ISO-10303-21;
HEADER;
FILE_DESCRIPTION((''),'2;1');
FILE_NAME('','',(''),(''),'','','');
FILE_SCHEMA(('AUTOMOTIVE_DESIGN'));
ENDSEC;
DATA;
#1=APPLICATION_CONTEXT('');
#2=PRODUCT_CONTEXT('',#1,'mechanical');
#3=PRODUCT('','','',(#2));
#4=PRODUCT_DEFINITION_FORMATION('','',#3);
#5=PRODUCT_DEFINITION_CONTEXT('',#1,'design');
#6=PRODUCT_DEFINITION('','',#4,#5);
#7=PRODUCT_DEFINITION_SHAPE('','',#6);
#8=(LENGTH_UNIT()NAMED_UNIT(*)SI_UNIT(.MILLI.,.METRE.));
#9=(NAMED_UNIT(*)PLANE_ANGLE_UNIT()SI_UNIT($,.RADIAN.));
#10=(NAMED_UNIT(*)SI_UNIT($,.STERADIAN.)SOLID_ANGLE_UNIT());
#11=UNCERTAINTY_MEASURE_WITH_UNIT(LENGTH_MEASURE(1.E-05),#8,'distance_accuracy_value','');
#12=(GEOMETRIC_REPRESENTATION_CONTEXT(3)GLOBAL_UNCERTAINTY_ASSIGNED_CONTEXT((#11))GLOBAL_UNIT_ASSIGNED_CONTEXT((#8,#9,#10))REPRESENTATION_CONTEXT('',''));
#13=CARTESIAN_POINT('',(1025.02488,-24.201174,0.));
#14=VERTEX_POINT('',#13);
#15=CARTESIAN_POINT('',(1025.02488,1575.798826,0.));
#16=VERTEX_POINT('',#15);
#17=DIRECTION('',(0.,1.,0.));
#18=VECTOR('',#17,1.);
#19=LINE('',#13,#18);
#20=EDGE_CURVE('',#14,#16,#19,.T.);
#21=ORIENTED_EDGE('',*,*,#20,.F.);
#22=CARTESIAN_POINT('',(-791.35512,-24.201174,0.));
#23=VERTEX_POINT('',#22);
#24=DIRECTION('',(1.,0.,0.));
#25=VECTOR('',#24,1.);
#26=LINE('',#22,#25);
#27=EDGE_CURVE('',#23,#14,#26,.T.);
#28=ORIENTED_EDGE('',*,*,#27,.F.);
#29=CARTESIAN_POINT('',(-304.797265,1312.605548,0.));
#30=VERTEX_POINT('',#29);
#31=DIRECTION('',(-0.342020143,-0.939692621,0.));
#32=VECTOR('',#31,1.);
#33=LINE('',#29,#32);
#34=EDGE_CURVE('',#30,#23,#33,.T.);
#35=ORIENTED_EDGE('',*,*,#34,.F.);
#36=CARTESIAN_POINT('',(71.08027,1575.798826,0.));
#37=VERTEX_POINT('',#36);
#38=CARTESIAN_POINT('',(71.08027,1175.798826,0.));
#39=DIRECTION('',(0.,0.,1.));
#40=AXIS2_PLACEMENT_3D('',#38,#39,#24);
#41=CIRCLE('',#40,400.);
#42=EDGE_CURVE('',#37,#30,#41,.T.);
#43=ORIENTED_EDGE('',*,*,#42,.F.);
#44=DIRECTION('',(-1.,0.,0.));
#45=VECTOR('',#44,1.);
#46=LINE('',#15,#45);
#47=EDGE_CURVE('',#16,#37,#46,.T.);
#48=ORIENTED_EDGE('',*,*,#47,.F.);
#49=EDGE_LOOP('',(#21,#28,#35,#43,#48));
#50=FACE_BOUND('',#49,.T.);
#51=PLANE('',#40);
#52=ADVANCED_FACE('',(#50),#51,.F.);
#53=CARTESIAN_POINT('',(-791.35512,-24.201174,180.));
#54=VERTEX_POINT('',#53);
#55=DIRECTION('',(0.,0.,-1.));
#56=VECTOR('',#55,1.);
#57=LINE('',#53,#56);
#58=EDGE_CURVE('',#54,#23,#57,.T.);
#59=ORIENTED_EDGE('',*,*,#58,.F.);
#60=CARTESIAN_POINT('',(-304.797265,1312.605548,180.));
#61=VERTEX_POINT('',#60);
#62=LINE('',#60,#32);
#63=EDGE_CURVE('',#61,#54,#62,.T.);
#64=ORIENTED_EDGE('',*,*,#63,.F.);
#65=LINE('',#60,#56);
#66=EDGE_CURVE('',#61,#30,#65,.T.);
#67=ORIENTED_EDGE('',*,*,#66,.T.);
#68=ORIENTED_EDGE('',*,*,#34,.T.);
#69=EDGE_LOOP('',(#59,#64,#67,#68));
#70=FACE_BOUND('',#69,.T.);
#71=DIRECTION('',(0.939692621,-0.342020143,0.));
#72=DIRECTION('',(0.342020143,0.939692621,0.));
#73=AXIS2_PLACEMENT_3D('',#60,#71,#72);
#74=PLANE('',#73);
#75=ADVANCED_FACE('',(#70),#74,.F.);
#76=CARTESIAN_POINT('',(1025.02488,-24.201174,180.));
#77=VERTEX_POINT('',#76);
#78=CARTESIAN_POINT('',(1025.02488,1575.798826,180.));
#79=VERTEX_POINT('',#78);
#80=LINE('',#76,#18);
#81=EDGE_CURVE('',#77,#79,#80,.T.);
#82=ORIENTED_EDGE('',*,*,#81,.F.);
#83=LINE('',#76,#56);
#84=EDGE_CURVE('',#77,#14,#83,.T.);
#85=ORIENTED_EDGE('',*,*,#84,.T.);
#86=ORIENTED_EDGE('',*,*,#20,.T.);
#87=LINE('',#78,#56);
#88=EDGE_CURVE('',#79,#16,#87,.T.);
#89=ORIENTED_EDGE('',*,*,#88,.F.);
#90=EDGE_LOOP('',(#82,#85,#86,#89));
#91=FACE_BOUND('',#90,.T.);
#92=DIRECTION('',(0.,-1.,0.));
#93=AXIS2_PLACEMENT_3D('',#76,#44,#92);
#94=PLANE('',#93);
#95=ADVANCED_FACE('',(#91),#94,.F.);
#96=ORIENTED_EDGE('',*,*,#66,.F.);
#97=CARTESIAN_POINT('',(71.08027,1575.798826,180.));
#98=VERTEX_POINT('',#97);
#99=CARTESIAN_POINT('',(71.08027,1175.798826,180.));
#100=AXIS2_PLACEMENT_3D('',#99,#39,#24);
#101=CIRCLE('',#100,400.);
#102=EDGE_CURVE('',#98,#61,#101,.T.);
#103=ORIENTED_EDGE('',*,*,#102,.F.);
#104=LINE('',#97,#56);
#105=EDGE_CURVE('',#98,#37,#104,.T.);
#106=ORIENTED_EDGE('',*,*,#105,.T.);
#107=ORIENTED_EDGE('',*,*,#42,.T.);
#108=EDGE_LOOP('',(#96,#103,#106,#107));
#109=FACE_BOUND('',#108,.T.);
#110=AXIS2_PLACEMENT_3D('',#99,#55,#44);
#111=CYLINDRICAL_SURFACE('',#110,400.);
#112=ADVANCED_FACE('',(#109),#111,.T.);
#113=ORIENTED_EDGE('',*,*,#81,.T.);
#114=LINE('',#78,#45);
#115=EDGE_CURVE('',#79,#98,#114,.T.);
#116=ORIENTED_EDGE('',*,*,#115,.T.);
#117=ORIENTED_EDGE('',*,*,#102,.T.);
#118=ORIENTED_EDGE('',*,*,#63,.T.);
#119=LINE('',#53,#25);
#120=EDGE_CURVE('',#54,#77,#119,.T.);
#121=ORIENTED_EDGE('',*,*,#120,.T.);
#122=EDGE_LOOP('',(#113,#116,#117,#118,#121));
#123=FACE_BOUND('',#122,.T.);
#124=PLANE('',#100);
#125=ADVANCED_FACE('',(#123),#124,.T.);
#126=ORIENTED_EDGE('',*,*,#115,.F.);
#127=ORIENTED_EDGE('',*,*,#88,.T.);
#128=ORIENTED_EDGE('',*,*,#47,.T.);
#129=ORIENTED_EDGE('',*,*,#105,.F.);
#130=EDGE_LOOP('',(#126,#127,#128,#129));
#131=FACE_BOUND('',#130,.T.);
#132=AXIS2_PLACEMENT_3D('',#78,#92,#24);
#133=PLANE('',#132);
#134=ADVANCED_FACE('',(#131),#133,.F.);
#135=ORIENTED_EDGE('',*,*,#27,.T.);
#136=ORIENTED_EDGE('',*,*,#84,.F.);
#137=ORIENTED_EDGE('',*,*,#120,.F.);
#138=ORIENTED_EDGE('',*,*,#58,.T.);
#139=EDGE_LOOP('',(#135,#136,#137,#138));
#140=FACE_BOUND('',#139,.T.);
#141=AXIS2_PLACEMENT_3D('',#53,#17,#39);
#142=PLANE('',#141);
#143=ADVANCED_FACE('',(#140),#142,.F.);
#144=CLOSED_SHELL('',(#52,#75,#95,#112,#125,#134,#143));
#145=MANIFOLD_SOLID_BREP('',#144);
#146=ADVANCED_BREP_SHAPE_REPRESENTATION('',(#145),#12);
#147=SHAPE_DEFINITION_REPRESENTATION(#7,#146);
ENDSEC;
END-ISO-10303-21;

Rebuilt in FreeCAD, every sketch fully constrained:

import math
import FreeCAD as App
import Part
import Sketcher

V = App.Vector
Q = App.Units.Quantity

doc = App.newDocument("Part")
params = doc.addObject("Spreadsheet::Sheet", "Params")
for row, (alias, value) in enumerate([
    ("sketch1_radius", "400 mm"),
    ("sketch1_height", "1600 mm"),
    ("sketch1_length", "1422.6 mm"),
    ("sketch1_width", "1816.38 mm"),
    ("pad1_length", "180 mm"),
], start=1):
    params.set(f"A{row}", alias)
    params.set(f"B{row}", "=" + value)
    params.setAlias(f"B{row}", alias)

body = doc.addObject("PartDesign::Body", "Body")

# Sketch on XY plane
sketch1 = body.newObject("Sketcher::SketchObject", "Sketch")
sketch1.AttachmentSupport = (doc.getObject("XY_Plane"), [""])
sketch1.MapMode = "FlatFace"
sketch1.addGeometry([
    Part.LineSegment(V(-304.797265, 1312.605548, 0), V(-791.35512, -24.201174, 0)),  # 0
    Part.LineSegment(V(-791.35512, -24.201174, 0), V(1025.02488, -24.201174, 0)),  # 1
    Part.LineSegment(V(1025.02488, -24.201174, 0), V(1025.02488, 1575.798826, 0)),  # 2
    Part.LineSegment(V(1025.02488, 1575.798826, 0), V(71.08027, 1575.798826, 0)),  # 3
    Part.ArcOfCircle(Part.Circle(V(71.08027, 1175.798826, 0), V(0, 0, 1), 400), math.radians(90), math.radians(160.000203)),  # 4
], False)
sketch1.addConstraint([
    Sketcher.Constraint("Coincident", 0, 2, 1, 1),
    Sketcher.Constraint("Coincident", 1, 2, 2, 1),
    Sketcher.Constraint("Coincident", 2, 2, 3, 1),
    Sketcher.Constraint("Tangent", 3, 2, 4, 1),
    Sketcher.Constraint("Coincident", 4, 2, 0, 1),
    Sketcher.Constraint("Horizontal", 1),
    Sketcher.Constraint("Vertical", 2),
    Sketcher.Constraint("Horizontal", 3),
    Sketcher.Constraint("Radius", 4, Q("400 mm")),
    Sketcher.Constraint("DistanceY", 2, 1, 2, 2, Q("1600 mm")),
    Sketcher.Constraint("Angle", 0, Q("-110 deg")),
    Sketcher.Constraint("Distance", 0, Q("1422.6 mm")),
    Sketcher.Constraint("DistanceX", 1, 1, 1, 2, Q("1816.38 mm")),
    Sketcher.Constraint("DistanceX", -1, 1, 4, 3, Q("71.08027 mm")),
    Sketcher.Constraint("DistanceY", -1, 1, 4, 3, Q("1175.798826 mm")),
])
sketch1.setExpression("Constraints[8]", "Params.sketch1_radius")
sketch1.setExpression("Constraints[9]", "Params.sketch1_height")
sketch1.setExpression("Constraints[11]", "Params.sketch1_length")
sketch1.setExpression("Constraints[12]", "Params.sketch1_width")
pad1 = body.newObject("PartDesign::Pad", "Pad")
pad1.Profile = sketch1
pad1.setExpression("Length", "Params.pad1_length")

doc.recompute()
